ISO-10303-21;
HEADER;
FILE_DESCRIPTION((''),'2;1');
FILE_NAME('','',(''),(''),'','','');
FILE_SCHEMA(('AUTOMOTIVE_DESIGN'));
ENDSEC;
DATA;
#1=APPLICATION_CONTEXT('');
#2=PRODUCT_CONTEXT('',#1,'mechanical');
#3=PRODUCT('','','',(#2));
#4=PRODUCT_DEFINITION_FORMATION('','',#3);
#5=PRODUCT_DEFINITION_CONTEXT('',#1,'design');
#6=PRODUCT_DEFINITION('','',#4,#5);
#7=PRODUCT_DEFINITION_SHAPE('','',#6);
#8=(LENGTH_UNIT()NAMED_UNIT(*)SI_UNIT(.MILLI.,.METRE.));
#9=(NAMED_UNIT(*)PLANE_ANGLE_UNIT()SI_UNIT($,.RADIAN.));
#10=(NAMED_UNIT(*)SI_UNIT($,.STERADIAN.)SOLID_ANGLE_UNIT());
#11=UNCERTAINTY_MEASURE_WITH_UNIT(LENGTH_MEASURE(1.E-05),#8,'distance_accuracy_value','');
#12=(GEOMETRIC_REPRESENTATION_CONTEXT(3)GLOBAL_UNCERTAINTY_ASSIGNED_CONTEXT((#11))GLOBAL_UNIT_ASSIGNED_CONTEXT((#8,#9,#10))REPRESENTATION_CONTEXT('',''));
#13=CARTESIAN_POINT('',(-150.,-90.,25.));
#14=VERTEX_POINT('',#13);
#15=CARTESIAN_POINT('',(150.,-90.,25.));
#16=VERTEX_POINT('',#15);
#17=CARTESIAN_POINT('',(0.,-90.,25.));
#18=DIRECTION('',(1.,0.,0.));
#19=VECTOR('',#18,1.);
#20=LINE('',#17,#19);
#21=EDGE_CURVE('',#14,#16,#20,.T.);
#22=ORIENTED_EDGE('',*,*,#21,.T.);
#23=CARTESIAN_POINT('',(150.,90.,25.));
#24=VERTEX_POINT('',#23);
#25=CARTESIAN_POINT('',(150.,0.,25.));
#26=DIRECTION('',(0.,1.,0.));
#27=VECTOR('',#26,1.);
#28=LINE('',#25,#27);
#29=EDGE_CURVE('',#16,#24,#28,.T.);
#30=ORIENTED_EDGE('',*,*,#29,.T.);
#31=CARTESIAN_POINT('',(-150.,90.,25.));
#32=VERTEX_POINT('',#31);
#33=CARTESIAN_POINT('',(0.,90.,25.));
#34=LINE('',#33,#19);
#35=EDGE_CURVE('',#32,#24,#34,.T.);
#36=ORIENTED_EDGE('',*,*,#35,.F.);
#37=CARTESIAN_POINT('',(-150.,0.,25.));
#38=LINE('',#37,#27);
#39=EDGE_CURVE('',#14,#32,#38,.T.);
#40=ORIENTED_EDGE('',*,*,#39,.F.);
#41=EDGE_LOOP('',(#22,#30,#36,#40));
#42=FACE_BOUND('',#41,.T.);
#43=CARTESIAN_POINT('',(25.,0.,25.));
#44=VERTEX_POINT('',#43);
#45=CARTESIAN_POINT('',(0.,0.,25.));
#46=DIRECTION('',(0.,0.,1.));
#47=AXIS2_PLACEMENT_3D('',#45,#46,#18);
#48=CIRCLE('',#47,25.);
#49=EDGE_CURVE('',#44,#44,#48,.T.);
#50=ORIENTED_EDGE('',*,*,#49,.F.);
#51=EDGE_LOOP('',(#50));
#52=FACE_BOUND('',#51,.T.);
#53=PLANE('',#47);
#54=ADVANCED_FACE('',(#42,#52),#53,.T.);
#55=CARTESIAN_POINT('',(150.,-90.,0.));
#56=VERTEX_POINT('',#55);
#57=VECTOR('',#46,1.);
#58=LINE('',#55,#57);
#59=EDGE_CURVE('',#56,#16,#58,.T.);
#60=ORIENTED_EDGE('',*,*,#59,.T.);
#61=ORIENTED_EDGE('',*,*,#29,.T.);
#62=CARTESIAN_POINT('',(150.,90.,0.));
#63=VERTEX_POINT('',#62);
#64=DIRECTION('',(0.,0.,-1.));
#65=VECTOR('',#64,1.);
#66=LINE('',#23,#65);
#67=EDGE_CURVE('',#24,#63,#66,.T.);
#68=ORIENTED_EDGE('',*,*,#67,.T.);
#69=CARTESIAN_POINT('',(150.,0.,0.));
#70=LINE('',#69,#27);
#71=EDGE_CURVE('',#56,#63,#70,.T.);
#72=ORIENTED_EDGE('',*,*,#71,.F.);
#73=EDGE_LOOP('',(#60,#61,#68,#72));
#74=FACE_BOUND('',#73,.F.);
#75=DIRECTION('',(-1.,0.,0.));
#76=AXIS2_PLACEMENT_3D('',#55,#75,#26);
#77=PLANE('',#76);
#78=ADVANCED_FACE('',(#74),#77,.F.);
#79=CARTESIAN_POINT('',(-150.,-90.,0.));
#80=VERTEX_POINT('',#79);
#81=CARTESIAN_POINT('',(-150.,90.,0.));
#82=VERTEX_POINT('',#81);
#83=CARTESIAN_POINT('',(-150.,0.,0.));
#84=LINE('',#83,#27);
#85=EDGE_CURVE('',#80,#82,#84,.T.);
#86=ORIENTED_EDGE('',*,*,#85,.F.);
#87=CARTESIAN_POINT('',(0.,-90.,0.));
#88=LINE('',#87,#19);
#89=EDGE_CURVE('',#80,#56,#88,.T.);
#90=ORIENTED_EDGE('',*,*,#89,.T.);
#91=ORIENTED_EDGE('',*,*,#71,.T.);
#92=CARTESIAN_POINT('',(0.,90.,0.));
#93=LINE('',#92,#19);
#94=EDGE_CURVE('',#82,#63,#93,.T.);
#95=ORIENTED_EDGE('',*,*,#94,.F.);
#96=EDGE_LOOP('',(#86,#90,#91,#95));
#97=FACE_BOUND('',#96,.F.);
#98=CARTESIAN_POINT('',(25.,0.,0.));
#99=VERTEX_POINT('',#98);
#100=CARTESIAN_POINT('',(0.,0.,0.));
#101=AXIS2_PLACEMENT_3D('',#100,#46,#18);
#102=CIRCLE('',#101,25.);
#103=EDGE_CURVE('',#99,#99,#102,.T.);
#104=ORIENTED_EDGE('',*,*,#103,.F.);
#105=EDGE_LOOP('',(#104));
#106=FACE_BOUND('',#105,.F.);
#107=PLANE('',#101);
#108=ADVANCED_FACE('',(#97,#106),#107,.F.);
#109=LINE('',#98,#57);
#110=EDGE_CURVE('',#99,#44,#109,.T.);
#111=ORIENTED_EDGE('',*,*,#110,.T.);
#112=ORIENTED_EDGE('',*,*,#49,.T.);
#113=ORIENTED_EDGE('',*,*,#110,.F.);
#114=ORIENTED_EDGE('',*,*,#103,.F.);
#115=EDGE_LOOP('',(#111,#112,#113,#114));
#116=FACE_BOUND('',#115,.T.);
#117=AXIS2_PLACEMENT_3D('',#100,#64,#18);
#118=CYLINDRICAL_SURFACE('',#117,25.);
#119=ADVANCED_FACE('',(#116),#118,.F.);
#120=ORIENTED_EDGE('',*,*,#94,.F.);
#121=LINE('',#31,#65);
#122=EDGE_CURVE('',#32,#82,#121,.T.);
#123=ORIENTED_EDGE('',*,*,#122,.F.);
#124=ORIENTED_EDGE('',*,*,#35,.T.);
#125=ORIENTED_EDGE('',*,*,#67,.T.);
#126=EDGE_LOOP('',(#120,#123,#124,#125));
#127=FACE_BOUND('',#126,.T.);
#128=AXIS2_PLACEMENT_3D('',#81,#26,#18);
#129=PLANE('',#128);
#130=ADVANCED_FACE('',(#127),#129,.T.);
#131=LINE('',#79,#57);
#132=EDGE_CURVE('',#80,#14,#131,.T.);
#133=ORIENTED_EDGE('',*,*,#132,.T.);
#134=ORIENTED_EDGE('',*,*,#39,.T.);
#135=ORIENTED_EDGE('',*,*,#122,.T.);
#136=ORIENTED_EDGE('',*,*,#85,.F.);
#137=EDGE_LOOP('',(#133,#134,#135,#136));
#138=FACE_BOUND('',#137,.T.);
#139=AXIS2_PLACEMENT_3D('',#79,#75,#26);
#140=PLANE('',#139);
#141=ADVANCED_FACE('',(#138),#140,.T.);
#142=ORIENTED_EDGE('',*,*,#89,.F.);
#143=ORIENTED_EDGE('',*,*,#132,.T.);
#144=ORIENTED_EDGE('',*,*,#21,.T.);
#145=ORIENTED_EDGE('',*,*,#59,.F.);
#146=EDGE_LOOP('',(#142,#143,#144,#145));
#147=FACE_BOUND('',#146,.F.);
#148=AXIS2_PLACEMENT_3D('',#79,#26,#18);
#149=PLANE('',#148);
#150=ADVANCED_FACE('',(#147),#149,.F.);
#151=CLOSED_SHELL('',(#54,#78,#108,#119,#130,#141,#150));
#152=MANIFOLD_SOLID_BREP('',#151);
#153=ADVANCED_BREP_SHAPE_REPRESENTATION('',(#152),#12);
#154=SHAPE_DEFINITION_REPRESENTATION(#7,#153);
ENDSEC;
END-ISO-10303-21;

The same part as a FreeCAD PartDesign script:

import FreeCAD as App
import Part
import Sketcher

V = App.Vector


def add_polygon(sketch, points):
    """Adds a closed chain of lines whose ends are joined by coincident constraints."""
    first, n = sketch.GeometryCount, len(points)
    for a, b in zip(points, points[1:] + points[:1]):
        sketch.addGeometry(Part.LineSegment(App.Vector(*a, 0), App.Vector(*b, 0)), False)
    for i in range(n):
        sketch.addConstraint(Sketcher.Constraint("Coincident", first + i, 2, first + (i + 1) % n, 1))

doc = App.newDocument("Part")
body = doc.addObject("PartDesign::Body", "Body")

sketch1 = body.newObject("Sketcher::SketchObject", "Sketch")
sketch1.AttachmentSupport = (doc.getObject("XY_Plane"), [""])
sketch1.MapMode = "FlatFace"
add_polygon(sketch1, [(-150, 90), (-150, -90), (150, -90), (150, 90)])
sketch1.addGeometry(Part.Circle(V(0, 0, 0), V(0, 0, 1), 25), False)
sketch1.addConstraint([
    Sketcher.Constraint("Vertical", 0),
    Sketcher.Constraint("Horizontal", 1),
    Sketcher.Constraint("Vertical", 2),
    Sketcher.Constraint("Horizontal", 3),
    Sketcher.Constraint("Coincident", 4, 3, -1, 1),
    Sketcher.Constraint("Symmetric", 0, 2, 2, 2, -1, 1),
    Sketcher.Constraint("Diameter", 4, 50.0),
    Sketcher.Constraint("DistanceX", 1, 1, 1, 2, 300.0),
    Sketcher.Constraint("DistanceY", 0, 2, 0, 1, 180.0),
])
pad1 = body.newObject("PartDesign::Pad", "Pad")
pad1.Profile = sketch1
pad1.Length = 5

sketch2 = body.newObject("Sketcher::SketchObject", "Sketch001")
sketch2.AttachmentSupport = (doc.getObject("XY_Plane"), [""])
sketch2.MapMode = "FlatFace"
add_polygon(sketch2, [(-150, 90), (-150, -90), (150, -90), (150, 90)])
sketch2.addGeometry(Part.Circle(V(0, 0, 0), V(0, 0, 1), 25), False)
sketch2.addConstraint([
    Sketcher.Constraint("Vertical", 0),
    Sketcher.Constraint("Horizontal", 1),
    Sketcher.Constraint("Vertical", 2),
    Sketcher.Constraint("Horizontal", 3),
    Sketcher.Constraint("Coincident", 4, 3, -1, 1),
    Sketcher.Constraint("Symmetric", 0, 2, 2, 2, -1, 1),
    Sketcher.Constraint("Diameter", 4, 50.0),
    Sketcher.Constraint("DistanceX", 1, 1, 1, 2, 300.0),
    Sketcher.Constraint("DistanceY", 0, 2, 0, 1, 180.0),
])
pad2 = body.newObject("PartDesign::Pad", "Pad001")
pad2.Profile = sketch2
pad2.Length = 25

doc.recompute()
